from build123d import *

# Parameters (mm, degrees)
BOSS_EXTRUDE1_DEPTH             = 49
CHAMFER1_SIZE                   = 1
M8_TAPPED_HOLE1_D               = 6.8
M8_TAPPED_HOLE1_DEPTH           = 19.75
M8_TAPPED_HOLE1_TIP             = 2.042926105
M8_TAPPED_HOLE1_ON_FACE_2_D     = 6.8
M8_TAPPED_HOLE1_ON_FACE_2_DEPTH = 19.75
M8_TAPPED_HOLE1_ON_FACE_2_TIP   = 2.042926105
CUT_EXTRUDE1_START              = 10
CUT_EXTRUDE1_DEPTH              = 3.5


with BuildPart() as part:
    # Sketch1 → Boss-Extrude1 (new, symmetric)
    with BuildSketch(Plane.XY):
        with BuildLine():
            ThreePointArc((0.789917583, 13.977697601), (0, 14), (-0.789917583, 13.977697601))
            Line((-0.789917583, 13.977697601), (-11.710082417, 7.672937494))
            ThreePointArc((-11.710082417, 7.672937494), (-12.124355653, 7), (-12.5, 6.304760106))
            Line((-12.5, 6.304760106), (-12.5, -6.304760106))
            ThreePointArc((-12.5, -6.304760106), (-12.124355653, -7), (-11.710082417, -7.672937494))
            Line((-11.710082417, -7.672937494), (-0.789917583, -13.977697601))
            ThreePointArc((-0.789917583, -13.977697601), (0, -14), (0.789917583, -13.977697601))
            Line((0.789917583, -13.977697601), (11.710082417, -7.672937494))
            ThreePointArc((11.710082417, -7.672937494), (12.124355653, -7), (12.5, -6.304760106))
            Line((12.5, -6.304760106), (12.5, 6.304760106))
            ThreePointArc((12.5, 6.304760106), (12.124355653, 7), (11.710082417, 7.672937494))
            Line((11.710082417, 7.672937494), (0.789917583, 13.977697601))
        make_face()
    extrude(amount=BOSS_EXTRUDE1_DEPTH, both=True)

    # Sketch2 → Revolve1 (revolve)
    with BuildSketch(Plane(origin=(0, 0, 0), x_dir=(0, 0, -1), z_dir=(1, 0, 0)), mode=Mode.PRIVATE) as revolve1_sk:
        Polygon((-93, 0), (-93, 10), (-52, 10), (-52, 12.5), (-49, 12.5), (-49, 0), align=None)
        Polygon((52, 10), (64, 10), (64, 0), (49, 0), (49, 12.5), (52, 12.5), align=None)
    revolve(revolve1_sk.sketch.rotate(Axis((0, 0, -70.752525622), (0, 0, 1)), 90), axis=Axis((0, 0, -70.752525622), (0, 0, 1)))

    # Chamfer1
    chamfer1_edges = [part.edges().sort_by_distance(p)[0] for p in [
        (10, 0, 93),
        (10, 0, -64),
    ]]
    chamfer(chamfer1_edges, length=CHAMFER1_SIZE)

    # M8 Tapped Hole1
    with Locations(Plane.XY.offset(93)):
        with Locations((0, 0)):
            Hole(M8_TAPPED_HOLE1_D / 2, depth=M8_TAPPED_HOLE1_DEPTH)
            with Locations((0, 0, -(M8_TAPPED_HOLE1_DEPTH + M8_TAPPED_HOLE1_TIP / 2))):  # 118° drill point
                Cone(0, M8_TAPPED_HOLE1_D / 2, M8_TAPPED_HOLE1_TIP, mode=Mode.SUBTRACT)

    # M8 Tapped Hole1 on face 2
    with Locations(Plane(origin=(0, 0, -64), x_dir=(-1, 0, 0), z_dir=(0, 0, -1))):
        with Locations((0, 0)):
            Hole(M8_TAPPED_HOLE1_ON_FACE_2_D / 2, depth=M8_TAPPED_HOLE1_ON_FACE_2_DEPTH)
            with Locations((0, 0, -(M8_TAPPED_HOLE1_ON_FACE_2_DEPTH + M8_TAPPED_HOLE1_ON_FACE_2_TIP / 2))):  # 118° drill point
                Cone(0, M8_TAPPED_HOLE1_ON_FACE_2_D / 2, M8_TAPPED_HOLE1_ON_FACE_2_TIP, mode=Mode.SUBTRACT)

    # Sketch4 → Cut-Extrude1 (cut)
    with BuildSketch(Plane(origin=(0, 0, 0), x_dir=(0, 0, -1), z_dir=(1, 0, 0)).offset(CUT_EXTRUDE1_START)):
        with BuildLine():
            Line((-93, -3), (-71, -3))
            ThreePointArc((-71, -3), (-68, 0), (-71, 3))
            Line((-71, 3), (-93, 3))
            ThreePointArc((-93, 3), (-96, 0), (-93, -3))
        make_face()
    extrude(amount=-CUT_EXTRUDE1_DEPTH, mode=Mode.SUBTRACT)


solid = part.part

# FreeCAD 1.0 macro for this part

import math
import FreeCAD as App
import Part
import Sketcher

V = App.Vector
Q = App.Units.Quantity


def edges_at(feature, points):
    """Names of the edges that pass closest to the given points."""
    edges = feature.Shape.Edges
    near = lambda p: min(range(len(edges)), key=lambda i: edges[i].distToShape(Part.Vertex(*p))[0])
    return sorted({f"Edge{near(p) + 1}" for p in points})


def add_polygon(sketch, points):
    """Adds a closed chain of lines whose ends are joined by coincident constraints."""
    first, n = sketch.GeometryCount, len(points)
    for a, b in zip(points, points[1:] + points[:1]):
        sketch.addGeometry(Part.LineSegment(App.Vector(*a, 0), App.Vector(*b, 0)), False)
    for i in range(n):
        sketch.addConstraint(Sketcher.Constraint("Coincident", first + i, 2, first + (i + 1) % n, 1))

doc = App.newDocument("Part")
params = doc.addObject("Spreadsheet::Sheet", "Params")
for row, (alias, value) in enumerate([
    ("sketch1_radius", "14 mm"),
    ("pad1_length", "98 mm"),
    ("sketch2_width", "10 mm"),
    ("sketch2_height", "44 mm"),
    ("sketch2_height2", "3 mm"),
    ("sketch2_height3", "12 mm"),
    ("sketch2_width2", "12.5 mm"),
    ("revolution_angle", "360 deg"),
    ("chamfer_size", "1 mm"),
    ("sketch3_diameter", "6.8 mm"),
    ("hole_diameter", "6.8 mm"),
    ("hole_depth", "19.75 mm"),
    ("sketch4_diameter", "6.8 mm"),
    ("hole2_diameter", "6.8 mm"),
    ("hole2_depth", "19.75 mm"),
    ("sketch5_radius", "3 mm"),
    ("sketch5_height", "22 mm"),
    ("pocket1_length", "3.5 mm"),
], start=1):
    params.set(f"A{row}", alias)
    params.set(f"B{row}", "=" + value)
    params.setAlias(f"B{row}", alias)

body = doc.addObject("PartDesign::Body", "Body")

# Sketch on XY plane
sketch1 = body.newObject("Sketcher::SketchObject", "Sketch")
sketch1.AttachmentSupport = (doc.getObject("XY_Plane"), [""])
sketch1.MapMode = "FlatFace"
sketch1.addGeometry(Part.ArcOfCircle(Part.Circle(V(0, 0, 0), V(0, 0, 1), 14), math.radians(86.77), math.radians(93.23)), False)
sketch1.addGeometry(Part.LineSegment(V(-0.8, 14, 0), V(-11.7, 7.7, 0)), False)
sketch1.addGeometry(Part.ArcOfCircle(Part.Circle(V(0, 0, 0), V(0, 0, 1), 14), math.radians(146.77), math.radians(153.23)), False)
sketch1.addGeometry(Part.LineSegment(V(-12.5, 6.3, 0), V(-12.5, -6.3, 0)), False)
sketch1.addGeometry(Part.ArcOfCircle(Part.Circle(V(0, 0, 0), V(0, 0, 1), 14), math.radians(-153.23), math.radians(-146.77)), False)
sketch1.addGeometry(Part.LineSegment(V(-11.7, -7.7, 0), V(-0.8, -14, 0)), False)
sketch1.addGeometry(Part.ArcOfCircle(Part.Circle(V(0, 0, 0), V(0, 0, 1), 14), math.radians(-93.23), math.radians(-86.77)), False)
sketch1.addGeometry(Part.LineSegment(V(0.8, -14, 0), V(11.7, -7.7, 0)), False)
sketch1.addGeometry(Part.ArcOfCircle(Part.Circle(V(0, 0, 0), V(0, 0, 1), 14), math.radians(-33.23), math.radians(-26.77)), False)
sketch1.addGeometry(Part.LineSegment(V(12.5, -6.3, 0), V(12.5, 6.3, 0)), False)
sketch1.addGeometry(Part.ArcOfCircle(Part.Circle(V(0, 0, 0), V(0, 0, 1), 14), math.radians(26.77), math.radians(33.23)), False)
sketch1.addGeometry(Part.LineSegment(V(11.7, 7.7, 0), V(0.8, 14, 0)), False)
sketch1.addConstraint(Sketcher.Constraint("Coincident", 0, 2, 1, 1))
sketch1.addConstraint(Sketcher.Constraint("Coincident", 1, 2, 2, 1))
sketch1.addConstraint(Sketcher.Constraint("Coincident", 2, 2, 3, 1))
sketch1.addConstraint(Sketcher.Constraint("Coincident", 3, 2, 4, 1))
sketch1.addConstraint(Sketcher.Constraint("Coincident", 4, 2, 5, 1))
sketch1.addConstraint(Sketcher.Constraint("Coincident", 5, 2, 6, 1))
sketch1.addConstraint(Sketcher.Constraint("Coincident", 6, 2, 7, 1))
sketch1.addConstraint(Sketcher.Constraint("Coincident", 7, 2, 8, 1))
sketch1.addConstraint(Sketcher.Constraint("Coincident", 8, 2, 9, 1))
sketch1.addConstraint(Sketcher.Constraint("Coincident", 9, 2, 10, 1))
sketch1.addConstraint(Sketcher.Constraint("Coincident", 10, 2, 11, 1))
sketch1.addConstraint(Sketcher.Constraint("Coincident", 11, 2, 0, 1))
sketch1.addConstraint(Sketcher.Constraint("Vertical", 3))
sketch1.addConstraint(Sketcher.Constraint("Vertical", 9))
sketch1.addConstraint(Sketcher.Constraint("Coincident", 0, 3, -1, 1))
sketch1.addConstraint(Sketcher.Constraint("Coincident", 2, 3, -1, 1))
sketch1.addConstraint(Sketcher.Constraint("Coincident", 4, 3, -1, 1))
sketch1.addConstraint(Sketcher.Constraint("Coincident", 6, 3, -1, 1))
sketch1.addConstraint(Sketcher.Constraint("Coincident", 8, 3, -1, 1))
sketch1.addConstraint(Sketcher.Constraint("Coincident", 10, 3, -1, 1))
sketch1.addConstraint(Sketcher.Constraint("Equal", 0, 2))
sketch1.addConstraint(Sketcher.Constraint("Equal", 2, 4))
sketch1.addConstraint(Sketcher.Constraint("Equal", 4, 6))
sketch1.addConstraint(Sketcher.Constraint("Equal", 6, 8))
sketch1.addConstraint(Sketcher.Constraint("Equal", 8, 10))
sketch1.addConstraint(Sketcher.Constraint("Parallel", 1, 7))
sketch1.addConstraint(Sketcher.Constraint("Parallel", 5, 11))
sketch1.addConstraint(Sketcher.Constraint("Horizontal", 5, 2, 6, 2))
sketch1.addConstraint(Sketcher.Constraint("Horizontal", 4, 2, 7, 2))
sketch1.addConstraint(Sketcher.Constraint("Horizontal", 3, 2, 8, 2))
sketch1.addConstraint(Sketcher.Constraint("Horizontal", 1, 2, 10, 2))
sketch1.addConstraint(Sketcher.Constraint("Vertical", 1, 2, 4, 2))
sketch1.addConstraint(Sketcher.Constraint("Radius", 0, 14.0))
sketch1.addConstraint(Sketcher.Constraint("Angle", 1, Q("-150 deg")))
sketch1.addConstraint(Sketcher.Constraint("DistanceX", 2, 2, -1, 1, 12.5))
sketch1.addConstraint(Sketcher.Constraint("DistanceX", 4, 2, 6, 2, 12.5))
sketch1.setExpression("Constraints[32]", "Params.sketch1_radius")
pad1 = body.newObject("PartDesign::Pad", "Pad")
pad1.Profile = sketch1
pad1.setExpression("Length", "Params.pad1_length")
pad1.Midplane = True

# Sketch on YZ plane
sketch2 = body.newObject("Sketcher::SketchObject", "Sketch001")
sketch2.AttachmentSupport = (doc.getObject("YZ_Plane"), [""])
sketch2.MapMode = "FlatFace"
add_polygon(sketch2, [(10, 93), (0, 93), (0, 49), (12.5, 49), (12.5, 52), (10, 52)])  # lines 0-5
add_polygon(sketch2, [(10, -64), (10, -52), (12.5, -52), (12.5, -49), (0, -49), (0, -64)])  # lines 6-11
sketch2.addConstraint(Sketcher.Constraint("Horizontal", 0))
sketch2.addConstraint(Sketcher.Constraint("Vertical", 1))
sketch2.addConstraint(Sketcher.Constraint("Horizontal", 2))
sketch2.addConstraint(Sketcher.Constraint("Vertical", 3))
sketch2.addConstraint(Sketcher.Constraint("Horizontal", 4))
sketch2.addConstraint(Sketcher.Constraint("Vertical", 5))
sketch2.addConstraint(Sketcher.Constraint("Vertical", 6))
sketch2.addConstraint(Sketcher.Constraint("Horizontal", 7))
sketch2.addConstraint(Sketcher.Constraint("Vertical", 8))
sketch2.addConstraint(Sketcher.Constraint("Horizontal", 9))
sketch2.addConstraint(Sketcher.Constraint("Vertical", 10))
sketch2.addConstraint(Sketcher.Constraint("Horizontal", 11))
sketch2.addConstraint(Sketcher.Constraint("Symmetric", 1, 2, 9, 2, -1, 1))
sketch2.addConstraint(Sketcher.Constraint("Symmetric", 4, 2, 6, 2, -1))
sketch2.addConstraint(Sketcher.Constraint("PointOnObject", 0, 2, -2))
sketch2.addConstraint(Sketcher.Constraint("Vertical", 3, 2, 7, 2))
sketch2.addConstraint(Sketcher.Constraint("DistanceX", 0, 2, 0, 1, 10.0))
sketch2.addConstraint(Sketcher.Constraint("DistanceY", 1, 2, 1, 1, 44.0))
sketch2.addConstraint(Sketcher.Constraint("DistanceY", 3, 1, 3, 2, 3.0))
sketch2.addConstraint(Sketcher.Constraint("DistanceY", 6, 1, 6, 2, 12.0))
sketch2.addConstraint(Sketcher.Constraint("DistanceX", 2, 1, 2, 2, 12.5))
sketch2.addConstraint(Sketcher.Constraint("DistanceY", -1, 1, 0, 2, 93.0))
sketch2.setExpression("Constraints[28]", "Params.sketch2_width")
sketch2.setExpression("Constraints[29]", "Params.sketch2_height")
sketch2.setExpression("Constraints[30]", "Params.sketch2_height2")
sketch2.setExpression("Constraints[31]", "Params.sketch2_height3")
sketch2.setExpression("Constraints[32]", "Params.sketch2_width2")
revolution = body.newObject("PartDesign::Revolution", "Revolution")
revolution.Profile = sketch2
revolution.ReferenceAxis = (sketch2, ["V_Axis"])
revolution.setExpression("Angle", "Params.revolution_angle")
doc.recompute()

chamfer = body.newObject("PartDesign::Chamfer", "Chamfer")
chamfer.Base = (revolution, edges_at(revolution, [(10, 0, 93), (10, 0, -64)]))
chamfer.setExpression("Size", "Params.chamfer_size")

# Sketch on XY plane
sketch3 = body.newObject("Sketcher::SketchObject", "Sketch002")
sketch3.AttachmentSupport = (doc.getObject("XY_Plane"), [""])
sketch3.MapMode = "FlatFace"
sketch3.AttachmentOffset = App.Placement(V(0, 0, 93), App.Rotation())
sketch3.addGeometry(Part.Circle(V(0, 0, 0), V(0, 0, 1), 3.4), False)
sketch3.addConstraint(Sketcher.Constraint("Coincident", 0, 3, -1, 1))
sketch3.addConstraint(Sketcher.Constraint("Diameter", 0, 6.8))
sketch3.setExpression("Constraints[1]", "Params.sketch3_diameter")
doc.recompute()
hole = body.newObject("PartDesign::Hole", "Hole")
hole.Profile = sketch3
hole.ThreadType = "None"
hole.setExpression("Diameter", "Params.hole_diameter")
hole.DepthType = "Dimension"
hole.setExpression("Depth", "Params.hole_depth")
hole.DrillPoint = "Angled"
hole.DrillPointAngle = 118

# Sketch on XY plane
sketch4 = body.newObject("Sketcher::SketchObject", "Sketch003")
sketch4.AttachmentSupport = (doc.getObject("XY_Plane"), [""])
sketch4.MapMode = "FlatFace"
sketch4.AttachmentOffset = App.Placement(V(0, 0, -64), App.Rotation())
sketch4.addGeometry(Part.Circle(V(0, 0, 0), V(0, 0, 1), 3.4), False)
sketch4.addConstraint(Sketcher.Constraint("Coincident", 0, 3, -1, 1))
sketch4.addConstraint(Sketcher.Constraint("Diameter", 0, 6.8))
sketch4.setExpression("Constraints[1]", "Params.sketch4_diameter")
doc.recompute()
hole2 = body.newObject("PartDesign::Hole", "Hole001")
hole2.Profile = sketch4
hole2.ThreadType = "None"
hole2.setExpression("Diameter", "Params.hole2_diameter")
hole2.DepthType = "Dimension"
hole2.setExpression("Depth", "Params.hole2_depth")
hole2.DrillPoint = "Angled"
hole2.DrillPointAngle = 118
hole2.Reversed = True

# Sketch on YZ plane
sketch5 = body.newObject("Sketcher::SketchObject", "Sketch004")
sketch5.AttachmentSupport = (doc.getObject("YZ_Plane"), [""])
sketch5.MapMode = "FlatFace"
sketch5.AttachmentOffset = App.Placement(V(0, 0, 10), App.Rotation())
sketch5.addGeometry(Part.LineSegment(V(-3, 93, 0), V(-3, 71, 0)), False)
sketch5.addGeometry(Part.ArcOfCircle(Part.Circle(V(0, 71, 0), V(0, 0, 1), 3), math.radians(180), math.radians(360)), False)
sketch5.addGeometry(Part.LineSegment(V(3, 71, 0), V(3, 93, 0)), False)
sketch5.addGeometry(Part.ArcOfCircle(Part.Circle(V(0, 93, 0), V(0, 0, 1), 3), math.radians(0), math.radians(180)), False)
sketch5.addConstraint(Sketcher.Constraint("Tangent", 0, 2, 1, 1))
sketch5.addConstraint(Sketcher.Constraint("Tangent", 1, 2, 2, 1))
sketch5.addConstraint(Sketcher.Constraint("Tangent", 2, 2, 3, 1))
sketch5.addConstraint(Sketcher.Constraint("Tangent", 3, 2, 0, 1))
sketch5.addConstraint(Sketcher.Constraint("Vertical", 0))
sketch5.addConstraint(Sketcher.Constraint("Vertical", 2))
sketch5.addConstraint(Sketcher.Constraint("PointOnObject", 1, 3, -2))
sketch5.addConstraint(Sketcher.Constraint("Radius", 1, 3.0))
sketch5.addConstraint(Sketcher.Constraint("DistanceY", 0, 2, 0, 1, 22.0))
sketch5.addConstraint(Sketcher.Constraint("DistanceY", -1, 1, 1, 3, 71.0))
sketch5.setExpression("Constraints[7]", "Params.sketch5_radius")
sketch5.setExpression("Constraints[8]", "Params.sketch5_height")
pocket1 = body.newObject("PartDesign::Pocket", "Pocket")
pocket1.Profile = sketch5
pocket1.setExpression("Length", "Params.pocket1_length")

doc.recompute()
